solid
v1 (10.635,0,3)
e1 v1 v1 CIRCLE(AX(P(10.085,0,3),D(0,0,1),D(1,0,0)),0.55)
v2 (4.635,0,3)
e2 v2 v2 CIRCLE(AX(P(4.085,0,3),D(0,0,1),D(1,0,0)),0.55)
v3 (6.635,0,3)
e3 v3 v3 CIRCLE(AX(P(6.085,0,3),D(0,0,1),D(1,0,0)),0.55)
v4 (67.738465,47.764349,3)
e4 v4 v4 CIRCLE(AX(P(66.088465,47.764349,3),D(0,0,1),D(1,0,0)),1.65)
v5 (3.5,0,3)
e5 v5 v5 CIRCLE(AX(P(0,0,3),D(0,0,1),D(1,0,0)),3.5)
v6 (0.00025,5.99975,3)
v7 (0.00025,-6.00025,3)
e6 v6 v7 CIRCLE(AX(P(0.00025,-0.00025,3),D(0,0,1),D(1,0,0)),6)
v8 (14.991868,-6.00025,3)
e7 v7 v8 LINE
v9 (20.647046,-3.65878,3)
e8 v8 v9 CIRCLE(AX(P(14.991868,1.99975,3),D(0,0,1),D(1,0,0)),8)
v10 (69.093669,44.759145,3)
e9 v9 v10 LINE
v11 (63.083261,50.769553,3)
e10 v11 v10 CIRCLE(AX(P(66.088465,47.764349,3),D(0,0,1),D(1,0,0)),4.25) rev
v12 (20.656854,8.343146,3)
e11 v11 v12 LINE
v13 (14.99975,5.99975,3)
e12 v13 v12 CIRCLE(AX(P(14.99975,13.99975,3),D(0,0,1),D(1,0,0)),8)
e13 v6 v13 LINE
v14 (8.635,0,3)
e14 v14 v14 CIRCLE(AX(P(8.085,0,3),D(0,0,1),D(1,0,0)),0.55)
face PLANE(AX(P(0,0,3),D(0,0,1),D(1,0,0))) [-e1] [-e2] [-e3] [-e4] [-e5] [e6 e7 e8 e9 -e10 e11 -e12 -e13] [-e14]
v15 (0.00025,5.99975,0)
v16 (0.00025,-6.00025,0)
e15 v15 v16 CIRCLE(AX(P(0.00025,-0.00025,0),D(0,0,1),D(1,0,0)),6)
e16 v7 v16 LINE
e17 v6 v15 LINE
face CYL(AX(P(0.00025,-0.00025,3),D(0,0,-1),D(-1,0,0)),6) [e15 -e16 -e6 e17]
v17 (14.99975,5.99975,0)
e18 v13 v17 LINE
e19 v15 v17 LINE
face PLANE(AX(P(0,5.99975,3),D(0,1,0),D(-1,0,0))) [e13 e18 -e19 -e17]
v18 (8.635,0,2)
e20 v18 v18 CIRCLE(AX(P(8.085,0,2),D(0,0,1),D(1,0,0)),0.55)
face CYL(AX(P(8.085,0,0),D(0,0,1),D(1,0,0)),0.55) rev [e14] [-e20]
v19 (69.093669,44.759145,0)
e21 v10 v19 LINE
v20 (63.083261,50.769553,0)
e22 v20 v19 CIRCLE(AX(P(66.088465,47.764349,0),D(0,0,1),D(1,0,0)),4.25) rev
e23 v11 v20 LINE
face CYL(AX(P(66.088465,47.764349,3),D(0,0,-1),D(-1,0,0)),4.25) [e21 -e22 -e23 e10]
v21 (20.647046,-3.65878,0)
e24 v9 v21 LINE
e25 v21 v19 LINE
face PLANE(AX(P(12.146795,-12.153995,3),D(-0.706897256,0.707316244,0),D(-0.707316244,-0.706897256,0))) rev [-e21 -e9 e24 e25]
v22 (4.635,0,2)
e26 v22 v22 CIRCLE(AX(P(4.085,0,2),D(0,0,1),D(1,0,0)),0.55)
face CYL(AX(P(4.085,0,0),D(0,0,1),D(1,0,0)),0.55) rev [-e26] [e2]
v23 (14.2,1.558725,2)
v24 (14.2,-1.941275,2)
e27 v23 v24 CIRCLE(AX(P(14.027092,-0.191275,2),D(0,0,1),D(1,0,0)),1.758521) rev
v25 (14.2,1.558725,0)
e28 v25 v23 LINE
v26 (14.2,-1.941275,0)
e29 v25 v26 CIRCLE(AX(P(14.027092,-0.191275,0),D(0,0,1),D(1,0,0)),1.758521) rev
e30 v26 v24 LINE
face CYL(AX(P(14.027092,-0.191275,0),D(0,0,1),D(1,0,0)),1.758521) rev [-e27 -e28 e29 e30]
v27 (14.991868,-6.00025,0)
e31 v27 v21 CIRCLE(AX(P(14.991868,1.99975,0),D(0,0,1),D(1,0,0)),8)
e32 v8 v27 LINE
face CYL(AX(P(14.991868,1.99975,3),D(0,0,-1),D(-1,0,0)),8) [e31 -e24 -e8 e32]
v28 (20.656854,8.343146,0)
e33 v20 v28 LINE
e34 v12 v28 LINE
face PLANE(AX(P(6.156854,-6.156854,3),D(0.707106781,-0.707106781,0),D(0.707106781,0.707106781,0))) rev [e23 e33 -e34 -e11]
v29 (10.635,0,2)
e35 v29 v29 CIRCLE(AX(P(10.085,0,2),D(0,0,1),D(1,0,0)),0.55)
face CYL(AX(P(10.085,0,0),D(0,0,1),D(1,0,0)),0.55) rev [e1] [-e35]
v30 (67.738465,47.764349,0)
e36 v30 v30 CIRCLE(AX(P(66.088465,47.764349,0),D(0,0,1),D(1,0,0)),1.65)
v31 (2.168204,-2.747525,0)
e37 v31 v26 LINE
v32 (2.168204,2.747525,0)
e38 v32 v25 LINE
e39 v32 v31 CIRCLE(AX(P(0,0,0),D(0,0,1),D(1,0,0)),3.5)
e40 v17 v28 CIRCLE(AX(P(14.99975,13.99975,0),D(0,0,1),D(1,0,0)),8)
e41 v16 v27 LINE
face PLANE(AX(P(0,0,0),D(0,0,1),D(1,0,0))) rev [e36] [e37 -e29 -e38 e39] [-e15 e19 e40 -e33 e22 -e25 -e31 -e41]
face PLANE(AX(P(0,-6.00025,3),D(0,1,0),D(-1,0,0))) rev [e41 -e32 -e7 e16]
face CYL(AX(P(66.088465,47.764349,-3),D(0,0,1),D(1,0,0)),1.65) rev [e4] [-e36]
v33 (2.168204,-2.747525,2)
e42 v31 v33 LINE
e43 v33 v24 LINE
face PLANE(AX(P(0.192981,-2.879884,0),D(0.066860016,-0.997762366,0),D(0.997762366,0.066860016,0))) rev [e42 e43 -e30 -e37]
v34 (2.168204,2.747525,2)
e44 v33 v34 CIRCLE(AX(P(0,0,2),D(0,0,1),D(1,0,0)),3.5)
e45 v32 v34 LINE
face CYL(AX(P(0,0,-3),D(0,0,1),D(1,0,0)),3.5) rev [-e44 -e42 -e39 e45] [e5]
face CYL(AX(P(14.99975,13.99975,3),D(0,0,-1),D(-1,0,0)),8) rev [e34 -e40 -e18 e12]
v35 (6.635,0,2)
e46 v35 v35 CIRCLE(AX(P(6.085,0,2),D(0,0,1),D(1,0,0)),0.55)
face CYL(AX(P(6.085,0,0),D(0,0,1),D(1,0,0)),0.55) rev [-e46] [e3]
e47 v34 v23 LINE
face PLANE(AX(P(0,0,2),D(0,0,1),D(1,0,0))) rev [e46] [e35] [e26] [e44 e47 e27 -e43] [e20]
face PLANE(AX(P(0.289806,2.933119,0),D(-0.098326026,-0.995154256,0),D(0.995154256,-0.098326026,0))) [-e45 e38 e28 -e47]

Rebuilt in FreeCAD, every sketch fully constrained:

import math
import FreeCAD as App
import Part
import Sketcher
Q = App.Units.Quantity

doc = App.newDocument("Part")
body = doc.addObject("PartDesign::Body", "Body")

sketch1 = doc.addObject("Sketcher::SketchObject", "Sketch")
body.addObject(sketch1)
sketch1.AttachmentSupport = (doc.XY_Plane, [""])
sketch1.MapMode = "FlatFace"
sketch1.addGeometry([
    Part.LineSegment(App.Vector(15, 6, 0), App.Vector(0, 6, 0)),
    Part.ArcOfCircle(Part.Circle(App.Vector(0, 0, 0), App.Vector(0, 0, 1), 6), math.radians(90), math.radians(270)),
    Part.LineSegment(App.Vector(0, -6, 0), App.Vector(15, -6, 0)),
    Part.ArcOfCircle(Part.Circle(App.Vector(15, 2, 0), App.Vector(0, 0, 1), 8), math.radians(-90), math.radians(-45)),
    Part.LineSegment(App.Vector(20.6, -3.7, 0), App.Vector(69.1, 44.8, 0)),
    Part.ArcOfCircle(Part.Circle(App.Vector(66.1, 47.8, 0), App.Vector(0, 0, 1), 4.2), math.radians(-45), math.radians(135)),
    Part.LineSegment(App.Vector(63.1, 50.8, 0), App.Vector(20.7, 8.3, 0)),
    Part.ArcOfCircle(Part.Circle(App.Vector(15, 14, 0), App.Vector(0, 0, 1), 8), math.radians(-90), math.radians(-45)),
], False)
sketch1.addConstraint([
    Sketcher.Constraint("Tangent", 0, 2, 1, 1),
    Sketcher.Constraint("Tangent", 1, 2, 2, 1),
    Sketcher.Constraint("Tangent", 2, 2, 3, 1),
    Sketcher.Constraint("Tangent", 3, 2, 4, 1),
    Sketcher.Constraint("Coincident", 4, 2, 5, 1),
    Sketcher.Constraint("Tangent", 5, 2, 6, 1),
    Sketcher.Constraint("Coincident", 6, 2, 7, 2),
    Sketcher.Constraint("Tangent", 7, 1, 0, 1),
    Sketcher.Constraint("Horizontal", 0),
    Sketcher.Constraint("Horizontal", 2),
    Sketcher.Constraint("Equal", 3, 7),
    Sketcher.Constraint("Radius", 1, Q("6 mm")),
    Sketcher.Constraint("Radius", 3, Q("8 mm")),
    Sketcher.Constraint("Angle", 6, Q("-135 deg")),
    Sketcher.Constraint("Radius", 5, Q("4.25 mm")),
    Sketcher.Constraint("Distance", 6, Q("60 mm")),
    Sketcher.Constraint("DistanceX", 0, 2, 0, 1, Q("14.9995 mm")),
    Sketcher.Constraint("DistanceY", 3, 3, 5, 3, Q("45.764599 mm")),
    Sketcher.Constraint("DistanceX", 3, 3, 4, 2, Q("54.101801 mm")),
    Sketcher.Constraint("Distance", 4, Q("68.493582 mm")),
    Sketcher.Constraint("DistanceX", -1, 1, 1, 3, Q("0.00025 mm")),
    Sketcher.Constraint("DistanceY", 1, 3, -1, 1, Q("0.00025 mm")),
])
pad1 = doc.addObject("PartDesign::Pad", "Pad")
body.addObject(pad1)
pad1.Profile = sketch1
pad1.Length = 3

sketch2 = doc.addObject("Sketcher::SketchObject", "Sketch001")
body.addObject(sketch2)
sketch2.AttachmentSupport = (doc.XY_Plane, [""])
sketch2.MapMode = "FlatFace"
sketch2.AttachmentOffset = App.Placement(App.Vector(0, 0, 3), App.Rotation())
sketch2.addGeometry([
    Part.Circle(App.Vector(0, 0, 0), App.Vector(0, 0, 1), 3.5),
    Part.Circle(App.Vector(66.1, 47.8, 0), App.Vector(0, 0, 1), 1.6),
], False)
sketch2.addConstraint([
    Sketcher.Constraint("Coincident", 0, 3, -1, 1),
    Sketcher.Constraint("Diameter", 0, Q("7 mm")),
    Sketcher.Constraint("Diameter", 1, Q("3.3 mm")),
    Sketcher.Constraint("DistanceY", -1, 1, 1, 3, Q("47.764349 mm")),
    Sketcher.Constraint("DistanceX", -1, 1, 1, 3, Q("66.088465 mm")),
])
pocket1 = doc.addObject("PartDesign::Pocket", "Pocket")
body.addObject(pocket1)
pocket1.Profile = sketch2
pocket1.Length = 6

sketch3 = doc.addObject("Sketcher::SketchObject", "Sketch002")
body.addObject(sketch3)
sketch3.AttachmentSupport = (doc.XY_Plane, [""])
sketch3.MapMode = "FlatFace"
sketch3.AttachmentOffset = App.Placement(App.Vector(0, 0, 2), App.Rotation())
sketch3.addGeometry([
    Part.LineSegment(App.Vector(14.2, 1.558725, 0), App.Vector(2.168204, 2.747525, 0)),
    Part.ArcOfCircle(Part.Circle(App.Vector(0, 0, 0), App.Vector(0, 0, 1), 3.5), math.radians(0), math.radians(51.721332)),
    Part.ArcOfCircle(Part.Circle(App.Vector(0, 0, 0), App.Vector(0, 0, 1), 3.5), math.radians(-51.721332), math.radians(0)),
    Part.LineSegment(App.Vector(2.168204, -2.747525, 0), App.Vector(14.2, -1.941275, 0)),
    Part.ArcOfCircle(Part.Circle(App.Vector(14.027092, -0.191275, 0), App.Vector(0, 0, 1), 1.758521), math.radians(-84.357216), math.radians(84.357216)),
], False)
sketch3.addConstraint([
    Sketcher.Constraint("Coincident", 0, 2, 1, 2),
    Sketcher.Constraint("Coincident", 1, 1, 2, 2),
    Sketcher.Constraint("Coincident", 2, 1, 3, 1),
    Sketcher.Constraint("Coincident", 3, 2, 4, 1),
    Sketcher.Constraint("Coincident", 4, 2, 0, 1),
    Sketcher.Constraint("Coincident", 1, 3, -1, 1),
    Sketcher.Constraint("Coincident", 2, 3, -1, 1),
    Sketcher.Constraint("PointOnObject", 1, 1, -1),
    Sketcher.Constraint("Radius", 1, Q("3.5 mm")),
    Sketcher.Constraint("DistanceX", -1, 1, 3, 2, Q("14.2 mm")),
    Sketcher.Constraint("DistanceX", -1, 1, 4, 2, Q("14.2 mm")),
    Sketcher.Constraint("DistanceY", 3, 2, 4, 2, Q("3.5 mm")),
    Sketcher.Constraint("Radius", 4, Q("1.758521 mm")),
    Sketcher.Constraint("DistanceY", 4, 3, 0, 2, Q("2.938799 mm")),
    Sketcher.Constraint("Distance", 3, Q("12.058779 mm")),
    Sketcher.Constraint("DistanceY", 2, 1, 0, 2, Q("5.49505 mm")),
])
pocket2 = doc.addObject("PartDesign::Pocket", "Pocket001")
body.addObject(pocket2)
pocket2.Profile = sketch3
pocket2.Type = "ThroughAll"

sketch4 = doc.addObject("Sketcher::SketchObject", "Sketch003")
body.addObject(sketch4)
sketch4.AttachmentSupport = (doc.XY_Plane, [""])
sketch4.MapMode = "FlatFace"
sketch4.AttachmentOffset = App.Placement(App.Vector(0, 0, 3), App.Rotation())
sketch4.addGeometry([
    Part.Circle(App.Vector(4.1, 0, 0), App.Vector(0, 0, 1), 0.6),
    Part.Circle(App.Vector(6.1, 0, 0), App.Vector(0, 0, 1), 0.6),
    Part.Circle(App.Vector(8.1, 0, 0), App.Vector(0, 0, 1), 0.6),
    Part.Circle(App.Vector(10.1, 0, 0), App.Vector(0, 0, 1), 0.6),
], False)
sketch4.addConstraint([
    Sketcher.Constraint("Equal", 0, 1),
    Sketcher.Constraint("Equal", 1, 2),
    Sketcher.Constraint("Equal", 2, 3),
    Sketcher.Constraint("PointOnObject", 0, 3, -1),
    Sketcher.Constraint("PointOnObject", 1, 3, -1),
    Sketcher.Constraint("PointOnObject", 2, 3, -1),
    Sketcher.Constraint("PointOnObject", 3, 3, -1),
    Sketcher.Constraint("Diameter", 0, Q("1.1 mm")),
    Sketcher.Constraint("DistanceX", 0, 3, 1, 3, Q("2 mm")),
    Sketcher.Constraint("DistanceX", 1, 3, 2, 3, Q("2 mm")),
    Sketcher.Constraint("DistanceX", 2, 3, 3, 3, Q("2 mm")),
    Sketcher.Constraint("DistanceX", -1, 1, 0, 3, Q("4.085 mm")),
])
pocket3 = doc.addObject("PartDesign::Pocket", "Pocket002")
body.addObject(pocket3)
pocket3.Profile = sketch4
pocket3.Type = "ThroughAll"

doc.recompute()
